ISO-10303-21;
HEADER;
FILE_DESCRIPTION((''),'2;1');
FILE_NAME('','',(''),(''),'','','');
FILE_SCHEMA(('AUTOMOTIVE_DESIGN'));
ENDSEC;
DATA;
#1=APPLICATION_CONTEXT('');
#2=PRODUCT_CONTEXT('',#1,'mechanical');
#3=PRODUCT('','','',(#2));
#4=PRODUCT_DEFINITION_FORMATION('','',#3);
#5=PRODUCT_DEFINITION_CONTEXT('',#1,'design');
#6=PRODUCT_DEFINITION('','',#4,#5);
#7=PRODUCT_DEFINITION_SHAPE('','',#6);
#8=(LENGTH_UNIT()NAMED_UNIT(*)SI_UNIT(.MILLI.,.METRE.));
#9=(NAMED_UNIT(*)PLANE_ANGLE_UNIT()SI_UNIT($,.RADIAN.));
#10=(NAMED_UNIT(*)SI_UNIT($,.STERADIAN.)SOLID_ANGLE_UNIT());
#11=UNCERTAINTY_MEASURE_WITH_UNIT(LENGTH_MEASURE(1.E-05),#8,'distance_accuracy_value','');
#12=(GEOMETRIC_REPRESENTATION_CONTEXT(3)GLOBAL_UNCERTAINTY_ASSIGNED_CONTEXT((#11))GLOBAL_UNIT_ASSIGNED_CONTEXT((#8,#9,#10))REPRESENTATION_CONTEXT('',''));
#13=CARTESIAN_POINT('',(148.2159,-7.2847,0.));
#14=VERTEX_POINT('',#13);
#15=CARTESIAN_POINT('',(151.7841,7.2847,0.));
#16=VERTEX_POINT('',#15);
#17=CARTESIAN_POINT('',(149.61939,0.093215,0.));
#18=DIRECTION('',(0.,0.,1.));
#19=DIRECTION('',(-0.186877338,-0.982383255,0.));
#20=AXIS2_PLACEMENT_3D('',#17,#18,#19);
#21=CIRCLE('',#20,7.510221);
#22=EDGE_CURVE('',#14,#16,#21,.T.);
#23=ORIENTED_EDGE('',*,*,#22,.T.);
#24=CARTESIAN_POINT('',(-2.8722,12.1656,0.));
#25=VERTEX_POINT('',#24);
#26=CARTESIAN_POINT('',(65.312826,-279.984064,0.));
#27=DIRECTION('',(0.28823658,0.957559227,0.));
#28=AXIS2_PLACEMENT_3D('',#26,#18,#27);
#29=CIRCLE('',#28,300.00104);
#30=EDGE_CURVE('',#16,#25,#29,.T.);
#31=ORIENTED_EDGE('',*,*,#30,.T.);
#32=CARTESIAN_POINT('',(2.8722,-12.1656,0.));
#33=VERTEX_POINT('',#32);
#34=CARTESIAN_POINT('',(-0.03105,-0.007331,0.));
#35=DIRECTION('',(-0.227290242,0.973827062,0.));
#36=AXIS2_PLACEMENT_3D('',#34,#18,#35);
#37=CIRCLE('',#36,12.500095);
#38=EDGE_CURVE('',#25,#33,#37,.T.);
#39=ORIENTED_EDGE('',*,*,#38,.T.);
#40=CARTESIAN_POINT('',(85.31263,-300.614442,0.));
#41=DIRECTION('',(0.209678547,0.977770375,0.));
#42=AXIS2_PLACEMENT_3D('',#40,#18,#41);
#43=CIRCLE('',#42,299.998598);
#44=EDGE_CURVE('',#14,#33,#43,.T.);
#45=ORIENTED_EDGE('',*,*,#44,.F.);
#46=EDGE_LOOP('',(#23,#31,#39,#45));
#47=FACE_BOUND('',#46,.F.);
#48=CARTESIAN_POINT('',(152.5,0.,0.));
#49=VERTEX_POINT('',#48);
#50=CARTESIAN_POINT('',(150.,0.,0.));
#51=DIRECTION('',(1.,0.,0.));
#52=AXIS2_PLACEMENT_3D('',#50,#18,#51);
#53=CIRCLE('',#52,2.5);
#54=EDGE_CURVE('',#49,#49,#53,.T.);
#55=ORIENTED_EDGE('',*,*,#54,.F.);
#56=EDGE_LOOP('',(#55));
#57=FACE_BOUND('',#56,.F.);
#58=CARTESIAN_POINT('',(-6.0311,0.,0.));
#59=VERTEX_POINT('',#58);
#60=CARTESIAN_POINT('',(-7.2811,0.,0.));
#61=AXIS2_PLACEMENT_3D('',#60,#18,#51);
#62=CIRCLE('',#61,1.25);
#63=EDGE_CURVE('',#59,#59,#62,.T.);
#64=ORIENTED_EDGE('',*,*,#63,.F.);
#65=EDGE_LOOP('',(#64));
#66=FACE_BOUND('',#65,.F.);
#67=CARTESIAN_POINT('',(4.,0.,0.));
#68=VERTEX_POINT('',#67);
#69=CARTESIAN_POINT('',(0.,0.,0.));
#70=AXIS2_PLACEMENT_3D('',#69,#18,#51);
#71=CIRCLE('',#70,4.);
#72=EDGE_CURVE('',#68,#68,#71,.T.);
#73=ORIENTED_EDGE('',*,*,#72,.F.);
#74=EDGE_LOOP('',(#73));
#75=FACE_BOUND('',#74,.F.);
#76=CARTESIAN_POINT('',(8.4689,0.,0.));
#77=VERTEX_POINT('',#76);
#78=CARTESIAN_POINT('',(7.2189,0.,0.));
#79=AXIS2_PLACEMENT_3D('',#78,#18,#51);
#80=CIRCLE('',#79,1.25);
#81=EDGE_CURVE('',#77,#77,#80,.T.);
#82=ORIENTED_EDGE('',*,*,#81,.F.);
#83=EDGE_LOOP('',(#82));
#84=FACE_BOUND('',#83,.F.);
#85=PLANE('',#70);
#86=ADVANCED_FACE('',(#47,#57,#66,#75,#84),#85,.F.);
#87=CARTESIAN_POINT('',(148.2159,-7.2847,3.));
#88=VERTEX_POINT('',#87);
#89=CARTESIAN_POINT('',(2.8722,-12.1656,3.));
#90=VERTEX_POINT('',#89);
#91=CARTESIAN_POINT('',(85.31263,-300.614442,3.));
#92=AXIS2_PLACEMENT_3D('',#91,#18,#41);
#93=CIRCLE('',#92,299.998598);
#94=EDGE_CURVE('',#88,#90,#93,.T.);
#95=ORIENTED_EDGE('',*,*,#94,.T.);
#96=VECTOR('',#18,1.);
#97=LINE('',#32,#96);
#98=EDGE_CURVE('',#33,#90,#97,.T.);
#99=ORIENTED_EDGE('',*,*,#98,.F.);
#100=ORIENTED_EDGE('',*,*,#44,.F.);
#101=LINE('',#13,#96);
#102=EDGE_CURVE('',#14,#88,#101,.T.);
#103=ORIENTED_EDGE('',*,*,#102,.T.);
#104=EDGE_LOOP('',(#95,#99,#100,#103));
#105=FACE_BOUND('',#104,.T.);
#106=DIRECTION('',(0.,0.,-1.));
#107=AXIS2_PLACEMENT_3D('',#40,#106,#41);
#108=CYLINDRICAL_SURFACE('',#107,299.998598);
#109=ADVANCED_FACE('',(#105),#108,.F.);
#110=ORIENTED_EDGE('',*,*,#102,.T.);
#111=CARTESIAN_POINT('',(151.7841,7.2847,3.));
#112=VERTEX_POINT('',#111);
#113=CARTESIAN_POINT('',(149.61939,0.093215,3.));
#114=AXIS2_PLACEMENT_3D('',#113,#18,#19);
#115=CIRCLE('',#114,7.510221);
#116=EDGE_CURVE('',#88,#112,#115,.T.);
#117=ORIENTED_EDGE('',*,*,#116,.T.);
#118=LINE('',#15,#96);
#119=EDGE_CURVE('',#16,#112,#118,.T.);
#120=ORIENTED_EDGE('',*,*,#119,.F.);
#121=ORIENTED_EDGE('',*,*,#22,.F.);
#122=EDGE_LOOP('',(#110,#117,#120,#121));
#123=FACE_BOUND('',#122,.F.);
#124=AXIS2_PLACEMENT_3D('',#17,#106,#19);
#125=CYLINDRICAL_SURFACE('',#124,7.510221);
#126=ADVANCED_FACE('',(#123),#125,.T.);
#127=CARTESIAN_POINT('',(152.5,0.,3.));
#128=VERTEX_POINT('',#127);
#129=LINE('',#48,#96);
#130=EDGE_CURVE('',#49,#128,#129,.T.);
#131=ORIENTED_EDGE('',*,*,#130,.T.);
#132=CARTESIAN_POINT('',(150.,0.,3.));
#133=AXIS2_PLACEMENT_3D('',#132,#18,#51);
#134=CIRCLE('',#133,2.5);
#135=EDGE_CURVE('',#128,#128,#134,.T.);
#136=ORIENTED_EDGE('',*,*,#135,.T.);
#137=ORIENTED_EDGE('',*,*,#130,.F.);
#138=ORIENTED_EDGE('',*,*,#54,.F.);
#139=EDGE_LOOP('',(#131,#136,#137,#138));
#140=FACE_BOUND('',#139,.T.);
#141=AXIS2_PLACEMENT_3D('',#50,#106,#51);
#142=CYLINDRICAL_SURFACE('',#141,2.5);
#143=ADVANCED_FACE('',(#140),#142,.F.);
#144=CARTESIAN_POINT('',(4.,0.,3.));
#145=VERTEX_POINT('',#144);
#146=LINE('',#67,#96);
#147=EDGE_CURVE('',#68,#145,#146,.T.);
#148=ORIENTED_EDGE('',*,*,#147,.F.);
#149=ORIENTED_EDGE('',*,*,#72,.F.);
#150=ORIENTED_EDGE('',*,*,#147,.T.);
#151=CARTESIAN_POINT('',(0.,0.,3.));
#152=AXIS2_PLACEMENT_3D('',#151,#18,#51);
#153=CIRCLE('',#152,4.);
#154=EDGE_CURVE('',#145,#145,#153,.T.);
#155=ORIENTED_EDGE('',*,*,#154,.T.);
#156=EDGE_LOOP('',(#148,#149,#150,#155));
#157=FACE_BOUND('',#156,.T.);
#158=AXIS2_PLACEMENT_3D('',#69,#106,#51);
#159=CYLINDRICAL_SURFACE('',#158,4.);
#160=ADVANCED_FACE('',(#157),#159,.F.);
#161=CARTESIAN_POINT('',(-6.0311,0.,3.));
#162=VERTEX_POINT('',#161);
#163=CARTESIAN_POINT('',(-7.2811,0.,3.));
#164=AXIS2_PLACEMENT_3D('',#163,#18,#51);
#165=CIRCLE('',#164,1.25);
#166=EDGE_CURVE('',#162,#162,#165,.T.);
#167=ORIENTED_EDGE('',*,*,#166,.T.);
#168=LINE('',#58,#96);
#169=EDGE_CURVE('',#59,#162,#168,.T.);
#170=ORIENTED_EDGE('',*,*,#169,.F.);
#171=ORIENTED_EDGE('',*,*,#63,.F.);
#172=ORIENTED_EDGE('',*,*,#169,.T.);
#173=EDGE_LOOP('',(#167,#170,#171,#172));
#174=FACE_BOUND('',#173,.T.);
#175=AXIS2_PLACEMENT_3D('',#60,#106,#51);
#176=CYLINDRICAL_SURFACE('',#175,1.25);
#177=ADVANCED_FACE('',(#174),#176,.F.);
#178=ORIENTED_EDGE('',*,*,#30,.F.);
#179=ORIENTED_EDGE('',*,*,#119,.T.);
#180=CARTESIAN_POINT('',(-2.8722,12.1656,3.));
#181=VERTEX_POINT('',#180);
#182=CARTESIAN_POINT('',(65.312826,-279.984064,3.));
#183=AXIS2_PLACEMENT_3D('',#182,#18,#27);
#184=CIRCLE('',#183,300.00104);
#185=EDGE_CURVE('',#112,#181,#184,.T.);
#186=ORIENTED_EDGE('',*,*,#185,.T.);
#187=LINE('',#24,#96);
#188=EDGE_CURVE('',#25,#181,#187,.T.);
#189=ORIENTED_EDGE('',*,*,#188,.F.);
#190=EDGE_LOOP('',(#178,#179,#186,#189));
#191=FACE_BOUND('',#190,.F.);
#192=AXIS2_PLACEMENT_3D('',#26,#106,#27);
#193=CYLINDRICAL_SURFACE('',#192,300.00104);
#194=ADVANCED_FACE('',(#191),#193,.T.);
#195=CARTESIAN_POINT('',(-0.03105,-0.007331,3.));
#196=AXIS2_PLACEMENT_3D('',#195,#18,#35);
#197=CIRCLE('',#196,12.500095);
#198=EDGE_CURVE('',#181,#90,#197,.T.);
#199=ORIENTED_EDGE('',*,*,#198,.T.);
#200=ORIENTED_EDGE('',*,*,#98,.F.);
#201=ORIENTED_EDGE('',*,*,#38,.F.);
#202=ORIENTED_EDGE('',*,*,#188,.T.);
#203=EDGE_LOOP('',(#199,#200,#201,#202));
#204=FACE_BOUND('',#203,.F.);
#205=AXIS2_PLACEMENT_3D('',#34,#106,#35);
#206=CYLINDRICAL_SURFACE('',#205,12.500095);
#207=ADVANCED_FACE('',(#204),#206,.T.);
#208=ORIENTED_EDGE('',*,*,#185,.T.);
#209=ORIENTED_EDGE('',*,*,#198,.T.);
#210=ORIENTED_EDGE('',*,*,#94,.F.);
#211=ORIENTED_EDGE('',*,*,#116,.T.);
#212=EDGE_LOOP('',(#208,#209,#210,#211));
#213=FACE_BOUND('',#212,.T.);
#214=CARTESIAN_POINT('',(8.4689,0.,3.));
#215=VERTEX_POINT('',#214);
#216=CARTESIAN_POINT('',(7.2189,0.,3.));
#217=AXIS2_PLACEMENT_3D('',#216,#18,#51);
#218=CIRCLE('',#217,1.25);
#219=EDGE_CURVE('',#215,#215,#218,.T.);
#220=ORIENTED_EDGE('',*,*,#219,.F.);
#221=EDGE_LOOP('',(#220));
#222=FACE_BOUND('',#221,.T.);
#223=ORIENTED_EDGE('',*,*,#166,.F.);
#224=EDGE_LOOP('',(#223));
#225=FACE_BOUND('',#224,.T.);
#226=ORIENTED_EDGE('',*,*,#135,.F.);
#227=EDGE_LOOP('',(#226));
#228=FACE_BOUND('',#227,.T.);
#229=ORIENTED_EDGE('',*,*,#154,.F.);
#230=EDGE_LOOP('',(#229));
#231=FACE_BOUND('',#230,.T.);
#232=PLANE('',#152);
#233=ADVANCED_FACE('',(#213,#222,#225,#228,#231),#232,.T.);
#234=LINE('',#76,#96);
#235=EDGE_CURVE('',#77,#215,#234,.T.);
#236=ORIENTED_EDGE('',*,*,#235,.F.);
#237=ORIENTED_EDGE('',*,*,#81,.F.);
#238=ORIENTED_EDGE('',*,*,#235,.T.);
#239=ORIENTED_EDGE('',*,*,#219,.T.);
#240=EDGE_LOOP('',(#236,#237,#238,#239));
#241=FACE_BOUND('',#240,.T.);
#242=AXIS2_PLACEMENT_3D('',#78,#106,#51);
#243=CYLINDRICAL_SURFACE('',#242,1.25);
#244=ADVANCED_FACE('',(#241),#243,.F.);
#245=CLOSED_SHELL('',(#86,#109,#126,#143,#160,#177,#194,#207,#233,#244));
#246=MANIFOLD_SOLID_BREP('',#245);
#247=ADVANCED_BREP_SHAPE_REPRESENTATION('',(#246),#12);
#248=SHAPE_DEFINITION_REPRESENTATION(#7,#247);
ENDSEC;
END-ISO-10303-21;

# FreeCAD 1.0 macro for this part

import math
import FreeCAD as App
import Part
import Sketcher

doc = App.newDocument("Part")
params = doc.addObject("Spreadsheet::Sheet", "Params")
for row, (alias, value) in enumerate([
    ("sketch1_diameter", "8 mm"),
    ("sketch1_diameter2", "5 mm"),
    ("sketch1_diameter3", "2.5 mm"),
    ("sketch1_radius", "12.5 mm"),
    ("pad1_length", "3 mm"),
], start=1):
    params.set(f"A{row}", alias)
    params.set(f"B{row}", "=" + value)
    params.setAlias(f"B{row}", alias)

body = doc.addObject("PartDesign::Body", "Body")

# Sketch on XY plane
sketch1 = body.newObject("Sketcher::SketchObject", "Sketch")
sketch1.AttachmentSupport = (doc.getObject("XY_Plane"), [""])
sketch1.MapMode = "FlatFace"
sketch1.addGeometry([
    Part.ArcOfCircle(Part.Circle(App.Vector(149.6, 0.1, 0), App.Vector(0, 0, 1), 7.5), math.radians(-101), math.radians(73)),  # 0
    Part.ArcOfCircle(Part.Circle(App.Vector(65.3, -280, 0), App.Vector(0, 0, 1), 300), math.radians(73), math.radians(103)),  # 1
    Part.ArcOfCircle(Part.Circle(App.Vector(0, 0, 0), App.Vector(0, 0, 1), 12.5), math.radians(103), math.radians(283)),  # 2
    Part.ArcOfCircle(Part.Circle(App.Vector(85.3, -300.6, 0), App.Vector(0, 0, 1), 300), math.radians(78), math.radians(106)),  # 3
    Part.Circle(App.Vector(-7.3, 0, 0), App.Vector(0, 0, 1), 1.2),  # 4
    Part.Circle(App.Vector(0, 0, 0), App.Vector(0, 0, 1), 4),  # 5
    Part.Circle(App.Vector(7.2, 0, 0), App.Vector(0, 0, 1), 1.2),  # 6
    Part.Circle(App.Vector(150, 0, 0), App.Vector(0, 0, 1), 2.5),  # 7
], False)
sketch1.addConstraint([
    Sketcher.Constraint("Tangent", 0, 2, 1, 1),
    Sketcher.Constraint("Tangent", 1, 2, 2, 1),
    Sketcher.Constraint("Coincident", 2, 2, 3, 2),
    Sketcher.Constraint("Coincident", 3, 1, 0, 1),
    Sketcher.Constraint("Coincident", 5, 3, -1, 1),
    Sketcher.Constraint("Equal", 4, 6),
    Sketcher.Constraint("Symmetric", 1, 2, 2, 2, -1, 1),
    Sketcher.Constraint("PointOnObject", 4, 3, -1),
    Sketcher.Constraint("PointOnObject", 6, 3, -1),
    Sketcher.Constraint("PointOnObject", 7, 3, -1),
    Sketcher.Constraint("Diameter", 5, 8.0),
    Sketcher.Constraint("Diameter", 7, 5.0),
    Sketcher.Constraint("Diameter", 4, 2.5),
    Sketcher.Constraint("Radius", 2, 12.5),
    Sketcher.Constraint("DistanceX", -1, 1, 7, 3, 150.0),
    Sketcher.Constraint("DistanceX", 4, 3, 6, 3, 14.5),
    Sketcher.Constraint("Radius", 1, 300.001),
    Sketcher.Constraint("Radius", 0, 7.5102),
    Sketcher.Constraint("Radius", 3, 299.9986),
    Sketcher.Constraint("DistanceX", 4, 3, 2, 3, 7.25),
    Sketcher.Constraint("DistanceY", 1, 3, -1, 1, 279.984),
    Sketcher.Constraint("DistanceX", 2, 3, -1, 1, 0.031),
    Sketcher.Constraint("DistanceX", -1, 1, 0, 2, 151.784),
    Sketcher.Constraint("DistanceX", -1, 1, 3, 1, 148.216),
])
sketch1.setExpression("Constraints[10]", "Params.sketch1_diameter")
sketch1.setExpression("Constraints[11]", "Params.sketch1_diameter2")
sketch1.setExpression("Constraints[12]", "Params.sketch1_diameter3")
sketch1.setExpression("Constraints[13]", "Params.sketch1_radius")
pad1 = body.newObject("PartDesign::Pad", "Pad")
pad1.Profile = sketch1
pad1.setExpression("Length", "Params.pad1_length")

doc.recompute()
